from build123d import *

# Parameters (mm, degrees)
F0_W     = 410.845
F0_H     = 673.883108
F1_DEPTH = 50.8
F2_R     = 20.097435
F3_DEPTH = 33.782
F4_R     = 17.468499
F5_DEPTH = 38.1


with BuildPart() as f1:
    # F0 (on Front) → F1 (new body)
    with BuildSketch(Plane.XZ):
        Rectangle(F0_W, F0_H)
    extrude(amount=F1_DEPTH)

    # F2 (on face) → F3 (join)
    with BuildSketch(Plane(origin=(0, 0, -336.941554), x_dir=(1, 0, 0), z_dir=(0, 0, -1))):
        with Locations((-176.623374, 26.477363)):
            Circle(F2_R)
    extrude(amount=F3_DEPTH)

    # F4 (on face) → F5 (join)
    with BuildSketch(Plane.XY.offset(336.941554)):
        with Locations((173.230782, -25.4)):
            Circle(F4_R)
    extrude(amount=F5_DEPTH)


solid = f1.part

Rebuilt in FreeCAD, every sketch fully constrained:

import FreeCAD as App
import Part
import Sketcher
Q = App.Units.Quantity

doc = App.newDocument("Part")
body = doc.addObject("PartDesign::Body", "Body")

# Sketch on XZ plane
sketch1 = doc.addObject("Sketcher::SketchObject", "Sketch")
body.addObject(sketch1)
sketch1.AttachmentSupport = (doc.XZ_Plane, [""])
sketch1.MapMode = "FlatFace"
sketch1.addGeometry(Part.LineSegment(App.Vector(-205.4225, 336.941554, 0), App.Vector(-205.4225, -336.941554, 0)), False)
sketch1.addGeometry(Part.LineSegment(App.Vector(-205.4225, -336.941554, 0), App.Vector(205.4225, -336.941554, 0)), False)
sketch1.addGeometry(Part.LineSegment(App.Vector(205.4225, -336.941554, 0), App.Vector(205.4225, 336.941554, 0)), False)
sketch1.addGeometry(Part.LineSegment(App.Vector(205.4225, 336.941554, 0), App.Vector(-205.4225, 336.941554, 0)), False)
sketch1.addConstraint(Sketcher.Constraint("Coincident", 0, 2, 1, 1))
sketch1.addConstraint(Sketcher.Constraint("Coincident", 1, 2, 2, 1))
sketch1.addConstraint(Sketcher.Constraint("Coincident", 2, 2, 3, 1))
sketch1.addConstraint(Sketcher.Constraint("Coincident", 3, 2, 0, 1))
sketch1.addConstraint(Sketcher.Constraint("Vertical", 0))
sketch1.addConstraint(Sketcher.Constraint("Horizontal", 1))
sketch1.addConstraint(Sketcher.Constraint("Vertical", 2))
sketch1.addConstraint(Sketcher.Constraint("Horizontal", 3))
sketch1.addConstraint(Sketcher.Constraint("Symmetric", 0, 2, 2, 2, -1, 1))
sketch1.addConstraint(Sketcher.Constraint("DistanceX", 1, 1, 1, 2, Q("16.175 in")))
sketch1.addConstraint(Sketcher.Constraint("DistanceY", 0, 2, 0, 1, Q("673.883108 mm")))
pad1 = doc.addObject("PartDesign::Pad", "Pad")
body.addObject(pad1)
pad1.Profile = sketch1
pad1.Length = Q("2 in")

# Sketch on XY plane
sketch2 = doc.addObject("Sketcher::SketchObject", "Sketch001")
body.addObject(sketch2)
sketch2.AttachmentSupport = (doc.XY_Plane, [""])
sketch2.MapMode = "FlatFace"
sketch2.AttachmentOffset = App.Placement(App.Vector(0, 0, -336.941554), App.Rotation())
sketch2.addGeometry(Part.Circle(App.Vector(-176.623374, -26.477363, 0), App.Vector(0, 0, 1), 20.097435), False)
sketch2.addConstraint(Sketcher.Constraint("Diameter", 0, Q("40.19487 mm")))
sketch2.addConstraint(Sketcher.Constraint("DistanceX", 0, 3, -1, 1, Q("176.623374 mm")))
sketch2.addConstraint(Sketcher.Constraint("DistanceY", 0, 3, -1, 1, Q("26.477363 mm")))
pad2 = doc.addObject("PartDesign::Pad", "Pad001")
body.addObject(pad2)
pad2.Profile = sketch2
pad2.Length = Q("1.33 in")
pad2.Reversed = True

# Sketch on XY plane
sketch3 = doc.addObject("Sketcher::SketchObject", "Sketch002")
body.addObject(sketch3)
sketch3.AttachmentSupport = (doc.XY_Plane, [""])
sketch3.MapMode = "FlatFace"
sketch3.AttachmentOffset = App.Placement(App.Vector(0, 0, 336.941554), App.Rotation())
sketch3.addGeometry(Part.Circle(App.Vector(173.230782, -25.4, 0), App.Vector(0, 0, 1), 17.468499), False)
sketch3.addConstraint(Sketcher.Constraint("DistanceY", 0, 3, -1, 1, Q("1 in")))
sketch3.addConstraint(Sketcher.Constraint("Diameter", 0, Q("34.936998 mm")))
sketch3.addConstraint(Sketcher.Constraint("DistanceX", -1, 1, 0, 3, Q("173.230782 mm")))
pad3 = doc.addObject("PartDesign::Pad", "Pad002")
body.addObject(pad3)
pad3.Profile = sketch3
pad3.Length = Q("1.5 in")

doc.recompute()
